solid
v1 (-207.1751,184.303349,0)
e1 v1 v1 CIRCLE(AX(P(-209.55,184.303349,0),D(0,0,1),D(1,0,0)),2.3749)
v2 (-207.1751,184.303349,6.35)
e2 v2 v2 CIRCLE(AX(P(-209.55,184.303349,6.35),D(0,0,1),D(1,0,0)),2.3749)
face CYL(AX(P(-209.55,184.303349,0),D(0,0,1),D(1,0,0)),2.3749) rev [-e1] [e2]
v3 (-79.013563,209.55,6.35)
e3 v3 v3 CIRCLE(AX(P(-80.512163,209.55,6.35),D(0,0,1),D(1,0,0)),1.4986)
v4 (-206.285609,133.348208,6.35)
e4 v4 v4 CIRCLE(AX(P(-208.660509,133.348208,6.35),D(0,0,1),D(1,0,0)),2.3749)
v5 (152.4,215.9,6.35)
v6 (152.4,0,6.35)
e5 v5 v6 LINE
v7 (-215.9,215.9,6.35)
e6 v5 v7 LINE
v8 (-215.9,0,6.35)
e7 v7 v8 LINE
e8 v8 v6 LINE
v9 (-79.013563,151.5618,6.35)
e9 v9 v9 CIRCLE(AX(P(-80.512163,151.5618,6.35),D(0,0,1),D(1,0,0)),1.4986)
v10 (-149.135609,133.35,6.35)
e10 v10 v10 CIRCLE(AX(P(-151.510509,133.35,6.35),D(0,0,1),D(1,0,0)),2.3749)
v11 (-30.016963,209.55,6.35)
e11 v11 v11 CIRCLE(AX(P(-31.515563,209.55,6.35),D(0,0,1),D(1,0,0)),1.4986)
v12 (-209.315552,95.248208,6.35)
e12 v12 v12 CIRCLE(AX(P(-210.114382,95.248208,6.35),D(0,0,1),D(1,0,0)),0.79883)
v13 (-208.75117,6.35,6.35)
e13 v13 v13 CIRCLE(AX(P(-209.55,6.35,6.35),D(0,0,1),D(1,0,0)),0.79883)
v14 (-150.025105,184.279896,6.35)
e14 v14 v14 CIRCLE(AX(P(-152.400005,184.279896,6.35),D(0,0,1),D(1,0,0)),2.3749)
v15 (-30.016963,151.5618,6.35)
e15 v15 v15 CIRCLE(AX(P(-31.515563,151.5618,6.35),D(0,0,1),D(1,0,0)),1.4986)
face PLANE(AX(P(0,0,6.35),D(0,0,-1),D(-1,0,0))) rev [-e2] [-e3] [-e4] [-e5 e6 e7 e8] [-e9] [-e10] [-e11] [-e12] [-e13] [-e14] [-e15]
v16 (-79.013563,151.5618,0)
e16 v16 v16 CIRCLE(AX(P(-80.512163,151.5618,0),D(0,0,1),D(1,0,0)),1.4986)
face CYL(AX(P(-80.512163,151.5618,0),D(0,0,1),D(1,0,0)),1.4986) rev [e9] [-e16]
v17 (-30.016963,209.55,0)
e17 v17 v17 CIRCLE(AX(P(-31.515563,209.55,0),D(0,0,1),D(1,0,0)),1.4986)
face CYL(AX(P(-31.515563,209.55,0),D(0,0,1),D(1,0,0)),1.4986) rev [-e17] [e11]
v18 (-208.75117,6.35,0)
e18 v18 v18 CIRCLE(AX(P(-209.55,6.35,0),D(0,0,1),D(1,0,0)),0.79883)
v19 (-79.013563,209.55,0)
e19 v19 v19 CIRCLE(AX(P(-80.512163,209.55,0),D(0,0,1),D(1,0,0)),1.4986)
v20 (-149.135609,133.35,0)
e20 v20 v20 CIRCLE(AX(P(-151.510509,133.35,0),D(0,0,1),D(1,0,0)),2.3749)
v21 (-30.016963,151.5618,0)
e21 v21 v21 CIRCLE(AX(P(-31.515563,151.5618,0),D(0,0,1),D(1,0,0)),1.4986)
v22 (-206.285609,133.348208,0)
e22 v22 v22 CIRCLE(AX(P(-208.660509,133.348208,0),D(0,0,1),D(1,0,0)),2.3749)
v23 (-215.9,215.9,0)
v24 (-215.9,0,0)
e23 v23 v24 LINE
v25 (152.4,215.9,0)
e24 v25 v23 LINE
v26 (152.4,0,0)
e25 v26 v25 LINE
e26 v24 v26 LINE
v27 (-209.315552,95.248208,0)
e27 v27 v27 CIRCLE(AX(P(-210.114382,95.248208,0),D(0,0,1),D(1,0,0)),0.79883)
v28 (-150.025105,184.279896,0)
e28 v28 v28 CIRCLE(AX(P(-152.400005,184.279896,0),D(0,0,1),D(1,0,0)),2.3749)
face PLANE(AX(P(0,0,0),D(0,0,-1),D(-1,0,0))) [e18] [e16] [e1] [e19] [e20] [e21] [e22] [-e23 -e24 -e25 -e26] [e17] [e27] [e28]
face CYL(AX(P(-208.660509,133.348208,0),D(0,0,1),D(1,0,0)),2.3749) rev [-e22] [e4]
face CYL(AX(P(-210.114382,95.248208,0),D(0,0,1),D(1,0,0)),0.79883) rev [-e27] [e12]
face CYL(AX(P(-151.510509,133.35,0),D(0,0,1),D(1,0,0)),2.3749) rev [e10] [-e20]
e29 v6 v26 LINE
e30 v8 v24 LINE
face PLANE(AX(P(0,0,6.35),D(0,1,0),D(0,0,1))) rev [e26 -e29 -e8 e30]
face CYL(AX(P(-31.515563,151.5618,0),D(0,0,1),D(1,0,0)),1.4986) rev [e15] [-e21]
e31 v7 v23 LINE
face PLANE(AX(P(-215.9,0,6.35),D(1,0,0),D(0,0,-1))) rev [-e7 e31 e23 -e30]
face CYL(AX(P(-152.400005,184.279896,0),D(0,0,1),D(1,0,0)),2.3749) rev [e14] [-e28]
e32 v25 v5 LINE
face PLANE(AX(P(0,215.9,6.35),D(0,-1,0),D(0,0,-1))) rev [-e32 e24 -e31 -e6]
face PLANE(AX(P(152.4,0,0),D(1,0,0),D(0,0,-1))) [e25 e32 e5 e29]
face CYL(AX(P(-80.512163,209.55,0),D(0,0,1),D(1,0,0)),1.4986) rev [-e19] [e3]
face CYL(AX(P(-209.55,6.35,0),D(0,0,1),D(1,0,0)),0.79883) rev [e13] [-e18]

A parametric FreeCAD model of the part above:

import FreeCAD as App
import Part
import Sketcher
from FreeCAD import Vector
Q = App.Units.Quantity

doc = App.newDocument("Part")
body = doc.addObject("PartDesign::Body", "Body")

sketch1 = doc.addObject("Sketcher::SketchObject", "Sketch")
body.addObject(sketch1)
sketch1.AttachmentSupport = (doc.XY_Plane, [""])
sketch1.MapMode = "FlatFace"
sketch1.addGeometry([
    Part.LineSegment(Vector(-216, 0, 0), Vector(0, 0, 0)),
    Part.LineSegment(Vector(0, 0, 0), Vector(0, 216, 0)),
    Part.LineSegment(Vector(0, 216, 0), Vector(-216, 216, 0)),
    Part.LineSegment(Vector(-216, 216, 0), Vector(-216, 0, 0)),
], False)
sketch1.addConstraint([
    Sketcher.Constraint("Coincident", 0, 2, 1, 1),
    Sketcher.Constraint("Coincident", 1, 2, 2, 1),
    Sketcher.Constraint("Coincident", 2, 2, 3, 1),
    Sketcher.Constraint("Coincident", 3, 2, 0, 1),
    Sketcher.Constraint("Horizontal", 0),
    Sketcher.Constraint("Vertical", 1),
    Sketcher.Constraint("Horizontal", 2),
    Sketcher.Constraint("Vertical", 3),
    Sketcher.Constraint("Coincident", 0, 2, -1, 1),
    Sketcher.Constraint("Equal", 2, 1),
    Sketcher.Constraint("DistanceX", 0, 1, 0, 2, Q("8.5 in")),
])
pad1 = doc.addObject("PartDesign::Pad", "Pad")
body.addObject(pad1)
pad1.Profile = sketch1
pad1.Length = Q("0.25 in")

sketch2 = doc.addObject("Sketcher::SketchObject", "Sketch001")
body.addObject(sketch2)
sketch2.AttachmentSupport = (doc.XY_Plane, [""])
sketch2.MapMode = "FlatFace"
sketch2.AttachmentOffset = App.Placement(Vector(0, 0, 0.25 * 25.4), App.Rotation())
sketch2.addGeometry([
    Part.Circle(Vector(-209.6, 6.3, 0), Vector(0, 0, 1), 0.8),
    Part.Circle(Vector(-210.1, 95.2, 0), Vector(0, 0, 1), 0.8),
], False)
sketch2.addConstraint([
    Sketcher.Constraint("Equal", 0, 1),
    Sketcher.Constraint("Diameter", 0, Q("0.0629 in")),
    Sketcher.Constraint("DistanceX", 0, 3, -1, 1, Q("8.25 in")),
    Sketcher.Constraint("DistanceY", -1, 1, 0, 3, Q("0.25 in")),
    Sketcher.Constraint("DistanceY", -1, 1, 1, 3, 95.248208),
    Sketcher.Constraint("DistanceX", 1, 3, -1, 1, 210.114382),
])
pocket1 = doc.addObject("PartDesign::Pocket", "Pocket")
body.addObject(pocket1)
pocket1.Profile = sketch2
pocket1.Type = "ThroughAll"

sketch3 = doc.addObject("Sketcher::SketchObject", "Sketch002")
body.addObject(sketch3)
sketch3.AttachmentSupport = (doc.XY_Plane, [""])
sketch3.MapMode = "FlatFace"
sketch3.AttachmentOffset = App.Placement(Vector(0, 0, 0.25 * 25.4), App.Rotation())
sketch3.addGeometry([
    Part.Circle(Vector(-209.6, 184.3, 0), Vector(0, 0, 1), 2.4),
    Part.Circle(Vector(-208.7, 133.3, 0), Vector(0, 0, 1), 2.4),
    Part.Circle(Vector(-152.4, 184.3, 0), Vector(0, 0, 1), 2.4),
    Part.Circle(Vector(-151.5, 133.3, 0), Vector(0, 0, 1), 2.4),
], False)
sketch3.addConstraint([
    Sketcher.Constraint("Equal", 0, 1),
    Sketcher.Constraint("Equal", 1, 2),
    Sketcher.Constraint("Equal", 2, 3),
    Sketcher.Constraint("Diameter", 0, Q("0.187 in")),
    Sketcher.Constraint("DistanceX", 2, 3, -1, 1, Q("6.0000002 in")),
    Sketcher.Constraint("DistanceX", 0, 3, -1, 1, Q("8.25 in")),
    Sketcher.Constraint("DistanceY", -1, 1, 3, 3, Q("5.25 in")),
    Sketcher.Constraint("DistanceX", 1, 3, 3, 3, Q("2.25 in")),
    Sketcher.Constraint("DistanceY", -1, 1, 0, 3, 184.303349),
    Sketcher.Constraint("DistanceX", 1, 3, -1, 1, 208.660509),
    Sketcher.Constraint("DistanceY", -1, 1, 1, 3, 133.348208),
    Sketcher.Constraint("DistanceY", -1, 1, 2, 3, 184.279896),
])
pocket2 = doc.addObject("PartDesign::Pocket", "Pocket001")
body.addObject(pocket2)
pocket2.Profile = sketch3
pocket2.Type = "ThroughAll"

sketch4 = doc.addObject("Sketcher::SketchObject", "Sketch003")
body.addObject(sketch4)
sketch4.AttachmentSupport = (doc.XY_Plane, [""])
sketch4.MapMode = "FlatFace"
sketch4.AttachmentOffset = App.Placement(Vector(0, 0, 0.25 * 25.4), App.Rotation())
sketch4.addGeometry([
    Part.Circle(Vector(-80.5, 209.6, 0), Vector(0, 0, 1), 1.5),
    Part.Circle(Vector(-31.5, 209.6, 0), Vector(0, 0, 1), 1.5),
    Part.Circle(Vector(-80.5, 151.6, 0), Vector(0, 0, 1), 1.5),
    Part.Circle(Vector(-31.5, 151.6, 0), Vector(0, 0, 1), 1.5),
], False)
sketch4.addConstraint([
    Sketcher.Constraint("Equal", 0, 1),
    Sketcher.Constraint("Equal", 1, 2),
    Sketcher.Constraint("Equal", 2, 3),
    Sketcher.Constraint("Horizontal", 0, 3, 1, 3),
    Sketcher.Constraint("Horizontal", 2, 3, 3, 3),
    Sketcher.Constraint("Vertical", 0, 3, 2, 3),
    Sketcher.Constraint("Vertical", 1, 3, 3, 3),
    Sketcher.Constraint("Diameter", 0, Q("0.118 in")),
    Sketcher.Constraint("DistanceY", -1, 1, 0, 3, Q("8.25 in")),
    Sketcher.Constraint("DistanceY", -1, 1, 2, 3, Q("5.967 in")),
    Sketcher.Constraint("DistanceX", 0, 3, 1, 3, Q("1.929 in")),
    Sketcher.Constraint("DistanceX", 0, 3, -1, 1, 80.512163),
])
pocket3 = doc.addObject("PartDesign::Pocket", "Pocket002")
body.addObject(pocket3)
pocket3.Profile = sketch4
pocket3.Type = "ThroughAll"

sketch5 = doc.addObject("Sketcher::SketchObject", "Sketch004")
body.addObject(sketch5)
sketch5.AttachmentSupport = (doc.YZ_Plane, [""])
sketch5.MapMode = "FlatFace"
sketch5.addGeometry([
    Part.LineSegment(Vector(0, 6, 0), Vector(0, 0, 0)),
    Part.LineSegment(Vector(0, 0, 0), Vector(216, 0, 0)),
    Part.LineSegment(Vector(216, 0, 0), Vector(216, 6, 0)),
    Part.LineSegment(Vector(216, 6, 0), Vector(0, 6, 0)),
], False)
sketch5.addConstraint([
    Sketcher.Constraint("Coincident", 0, 2, 1, 1),
    Sketcher.Constraint("Coincident", 1, 2, 2, 1),
    Sketcher.Constraint("Coincident", 2, 2, 3, 1),
    Sketcher.Constraint("Coincident", 3, 2, 0, 1),
    Sketcher.Constraint("Vertical", 0),
    Sketcher.Constraint("Horizontal", 1),
    Sketcher.Constraint("Vertical", 2),
    Sketcher.Constraint("Horizontal", 3),
    Sketcher.Constraint("Coincident", 0, 2, -1, 1),
    Sketcher.Constraint("DistanceX", 1, 1, 1, 2, Q("8.5 in")),
    Sketcher.Constraint("DistanceY", 0, 2, 0, 1, Q("0.25 in")),
])
pad2 = doc.addObject("PartDesign::Pad", "Pad001")
body.addObject(pad2)
pad2.Profile = sketch5
pad2.Length = Q("6 in")

doc.recompute()
